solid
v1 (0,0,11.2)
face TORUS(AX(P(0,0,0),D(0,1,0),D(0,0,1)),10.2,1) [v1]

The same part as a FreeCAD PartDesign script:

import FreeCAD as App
import Part
import Sketcher

V = App.Vector

doc = App.newDocument("Part")
body = doc.addObject("PartDesign::Body", "Body")

# Sketch on XY plane
sketch1 = doc.addObject("Sketcher::SketchObject", "Sketch")
body.addObject(sketch1)
sketch1.AttachmentSupport = (doc.XY_Plane, [""])
sketch1.MapMode = "FlatFace"
sketch1.addGeometry(Part.Circle(V(-10.2, 0, 0), V(0, 0, 1), 1), False)
sketch1.addConstraint([
    Sketcher.Constraint("PointOnObject", 0, 3, -1),
    Sketcher.Constraint("Diameter", 0, 2.0),
    Sketcher.Constraint("DistanceX", 0, 3, -1, 1, 10.2),
])
revolution = doc.addObject("PartDesign::Revolution", "Revolution")
body.addObject(revolution)
revolution.Profile = sketch1
revolution.ReferenceAxis = (sketch1, ["V_Axis"])
revolution.Angle = 360

doc.recompute()
